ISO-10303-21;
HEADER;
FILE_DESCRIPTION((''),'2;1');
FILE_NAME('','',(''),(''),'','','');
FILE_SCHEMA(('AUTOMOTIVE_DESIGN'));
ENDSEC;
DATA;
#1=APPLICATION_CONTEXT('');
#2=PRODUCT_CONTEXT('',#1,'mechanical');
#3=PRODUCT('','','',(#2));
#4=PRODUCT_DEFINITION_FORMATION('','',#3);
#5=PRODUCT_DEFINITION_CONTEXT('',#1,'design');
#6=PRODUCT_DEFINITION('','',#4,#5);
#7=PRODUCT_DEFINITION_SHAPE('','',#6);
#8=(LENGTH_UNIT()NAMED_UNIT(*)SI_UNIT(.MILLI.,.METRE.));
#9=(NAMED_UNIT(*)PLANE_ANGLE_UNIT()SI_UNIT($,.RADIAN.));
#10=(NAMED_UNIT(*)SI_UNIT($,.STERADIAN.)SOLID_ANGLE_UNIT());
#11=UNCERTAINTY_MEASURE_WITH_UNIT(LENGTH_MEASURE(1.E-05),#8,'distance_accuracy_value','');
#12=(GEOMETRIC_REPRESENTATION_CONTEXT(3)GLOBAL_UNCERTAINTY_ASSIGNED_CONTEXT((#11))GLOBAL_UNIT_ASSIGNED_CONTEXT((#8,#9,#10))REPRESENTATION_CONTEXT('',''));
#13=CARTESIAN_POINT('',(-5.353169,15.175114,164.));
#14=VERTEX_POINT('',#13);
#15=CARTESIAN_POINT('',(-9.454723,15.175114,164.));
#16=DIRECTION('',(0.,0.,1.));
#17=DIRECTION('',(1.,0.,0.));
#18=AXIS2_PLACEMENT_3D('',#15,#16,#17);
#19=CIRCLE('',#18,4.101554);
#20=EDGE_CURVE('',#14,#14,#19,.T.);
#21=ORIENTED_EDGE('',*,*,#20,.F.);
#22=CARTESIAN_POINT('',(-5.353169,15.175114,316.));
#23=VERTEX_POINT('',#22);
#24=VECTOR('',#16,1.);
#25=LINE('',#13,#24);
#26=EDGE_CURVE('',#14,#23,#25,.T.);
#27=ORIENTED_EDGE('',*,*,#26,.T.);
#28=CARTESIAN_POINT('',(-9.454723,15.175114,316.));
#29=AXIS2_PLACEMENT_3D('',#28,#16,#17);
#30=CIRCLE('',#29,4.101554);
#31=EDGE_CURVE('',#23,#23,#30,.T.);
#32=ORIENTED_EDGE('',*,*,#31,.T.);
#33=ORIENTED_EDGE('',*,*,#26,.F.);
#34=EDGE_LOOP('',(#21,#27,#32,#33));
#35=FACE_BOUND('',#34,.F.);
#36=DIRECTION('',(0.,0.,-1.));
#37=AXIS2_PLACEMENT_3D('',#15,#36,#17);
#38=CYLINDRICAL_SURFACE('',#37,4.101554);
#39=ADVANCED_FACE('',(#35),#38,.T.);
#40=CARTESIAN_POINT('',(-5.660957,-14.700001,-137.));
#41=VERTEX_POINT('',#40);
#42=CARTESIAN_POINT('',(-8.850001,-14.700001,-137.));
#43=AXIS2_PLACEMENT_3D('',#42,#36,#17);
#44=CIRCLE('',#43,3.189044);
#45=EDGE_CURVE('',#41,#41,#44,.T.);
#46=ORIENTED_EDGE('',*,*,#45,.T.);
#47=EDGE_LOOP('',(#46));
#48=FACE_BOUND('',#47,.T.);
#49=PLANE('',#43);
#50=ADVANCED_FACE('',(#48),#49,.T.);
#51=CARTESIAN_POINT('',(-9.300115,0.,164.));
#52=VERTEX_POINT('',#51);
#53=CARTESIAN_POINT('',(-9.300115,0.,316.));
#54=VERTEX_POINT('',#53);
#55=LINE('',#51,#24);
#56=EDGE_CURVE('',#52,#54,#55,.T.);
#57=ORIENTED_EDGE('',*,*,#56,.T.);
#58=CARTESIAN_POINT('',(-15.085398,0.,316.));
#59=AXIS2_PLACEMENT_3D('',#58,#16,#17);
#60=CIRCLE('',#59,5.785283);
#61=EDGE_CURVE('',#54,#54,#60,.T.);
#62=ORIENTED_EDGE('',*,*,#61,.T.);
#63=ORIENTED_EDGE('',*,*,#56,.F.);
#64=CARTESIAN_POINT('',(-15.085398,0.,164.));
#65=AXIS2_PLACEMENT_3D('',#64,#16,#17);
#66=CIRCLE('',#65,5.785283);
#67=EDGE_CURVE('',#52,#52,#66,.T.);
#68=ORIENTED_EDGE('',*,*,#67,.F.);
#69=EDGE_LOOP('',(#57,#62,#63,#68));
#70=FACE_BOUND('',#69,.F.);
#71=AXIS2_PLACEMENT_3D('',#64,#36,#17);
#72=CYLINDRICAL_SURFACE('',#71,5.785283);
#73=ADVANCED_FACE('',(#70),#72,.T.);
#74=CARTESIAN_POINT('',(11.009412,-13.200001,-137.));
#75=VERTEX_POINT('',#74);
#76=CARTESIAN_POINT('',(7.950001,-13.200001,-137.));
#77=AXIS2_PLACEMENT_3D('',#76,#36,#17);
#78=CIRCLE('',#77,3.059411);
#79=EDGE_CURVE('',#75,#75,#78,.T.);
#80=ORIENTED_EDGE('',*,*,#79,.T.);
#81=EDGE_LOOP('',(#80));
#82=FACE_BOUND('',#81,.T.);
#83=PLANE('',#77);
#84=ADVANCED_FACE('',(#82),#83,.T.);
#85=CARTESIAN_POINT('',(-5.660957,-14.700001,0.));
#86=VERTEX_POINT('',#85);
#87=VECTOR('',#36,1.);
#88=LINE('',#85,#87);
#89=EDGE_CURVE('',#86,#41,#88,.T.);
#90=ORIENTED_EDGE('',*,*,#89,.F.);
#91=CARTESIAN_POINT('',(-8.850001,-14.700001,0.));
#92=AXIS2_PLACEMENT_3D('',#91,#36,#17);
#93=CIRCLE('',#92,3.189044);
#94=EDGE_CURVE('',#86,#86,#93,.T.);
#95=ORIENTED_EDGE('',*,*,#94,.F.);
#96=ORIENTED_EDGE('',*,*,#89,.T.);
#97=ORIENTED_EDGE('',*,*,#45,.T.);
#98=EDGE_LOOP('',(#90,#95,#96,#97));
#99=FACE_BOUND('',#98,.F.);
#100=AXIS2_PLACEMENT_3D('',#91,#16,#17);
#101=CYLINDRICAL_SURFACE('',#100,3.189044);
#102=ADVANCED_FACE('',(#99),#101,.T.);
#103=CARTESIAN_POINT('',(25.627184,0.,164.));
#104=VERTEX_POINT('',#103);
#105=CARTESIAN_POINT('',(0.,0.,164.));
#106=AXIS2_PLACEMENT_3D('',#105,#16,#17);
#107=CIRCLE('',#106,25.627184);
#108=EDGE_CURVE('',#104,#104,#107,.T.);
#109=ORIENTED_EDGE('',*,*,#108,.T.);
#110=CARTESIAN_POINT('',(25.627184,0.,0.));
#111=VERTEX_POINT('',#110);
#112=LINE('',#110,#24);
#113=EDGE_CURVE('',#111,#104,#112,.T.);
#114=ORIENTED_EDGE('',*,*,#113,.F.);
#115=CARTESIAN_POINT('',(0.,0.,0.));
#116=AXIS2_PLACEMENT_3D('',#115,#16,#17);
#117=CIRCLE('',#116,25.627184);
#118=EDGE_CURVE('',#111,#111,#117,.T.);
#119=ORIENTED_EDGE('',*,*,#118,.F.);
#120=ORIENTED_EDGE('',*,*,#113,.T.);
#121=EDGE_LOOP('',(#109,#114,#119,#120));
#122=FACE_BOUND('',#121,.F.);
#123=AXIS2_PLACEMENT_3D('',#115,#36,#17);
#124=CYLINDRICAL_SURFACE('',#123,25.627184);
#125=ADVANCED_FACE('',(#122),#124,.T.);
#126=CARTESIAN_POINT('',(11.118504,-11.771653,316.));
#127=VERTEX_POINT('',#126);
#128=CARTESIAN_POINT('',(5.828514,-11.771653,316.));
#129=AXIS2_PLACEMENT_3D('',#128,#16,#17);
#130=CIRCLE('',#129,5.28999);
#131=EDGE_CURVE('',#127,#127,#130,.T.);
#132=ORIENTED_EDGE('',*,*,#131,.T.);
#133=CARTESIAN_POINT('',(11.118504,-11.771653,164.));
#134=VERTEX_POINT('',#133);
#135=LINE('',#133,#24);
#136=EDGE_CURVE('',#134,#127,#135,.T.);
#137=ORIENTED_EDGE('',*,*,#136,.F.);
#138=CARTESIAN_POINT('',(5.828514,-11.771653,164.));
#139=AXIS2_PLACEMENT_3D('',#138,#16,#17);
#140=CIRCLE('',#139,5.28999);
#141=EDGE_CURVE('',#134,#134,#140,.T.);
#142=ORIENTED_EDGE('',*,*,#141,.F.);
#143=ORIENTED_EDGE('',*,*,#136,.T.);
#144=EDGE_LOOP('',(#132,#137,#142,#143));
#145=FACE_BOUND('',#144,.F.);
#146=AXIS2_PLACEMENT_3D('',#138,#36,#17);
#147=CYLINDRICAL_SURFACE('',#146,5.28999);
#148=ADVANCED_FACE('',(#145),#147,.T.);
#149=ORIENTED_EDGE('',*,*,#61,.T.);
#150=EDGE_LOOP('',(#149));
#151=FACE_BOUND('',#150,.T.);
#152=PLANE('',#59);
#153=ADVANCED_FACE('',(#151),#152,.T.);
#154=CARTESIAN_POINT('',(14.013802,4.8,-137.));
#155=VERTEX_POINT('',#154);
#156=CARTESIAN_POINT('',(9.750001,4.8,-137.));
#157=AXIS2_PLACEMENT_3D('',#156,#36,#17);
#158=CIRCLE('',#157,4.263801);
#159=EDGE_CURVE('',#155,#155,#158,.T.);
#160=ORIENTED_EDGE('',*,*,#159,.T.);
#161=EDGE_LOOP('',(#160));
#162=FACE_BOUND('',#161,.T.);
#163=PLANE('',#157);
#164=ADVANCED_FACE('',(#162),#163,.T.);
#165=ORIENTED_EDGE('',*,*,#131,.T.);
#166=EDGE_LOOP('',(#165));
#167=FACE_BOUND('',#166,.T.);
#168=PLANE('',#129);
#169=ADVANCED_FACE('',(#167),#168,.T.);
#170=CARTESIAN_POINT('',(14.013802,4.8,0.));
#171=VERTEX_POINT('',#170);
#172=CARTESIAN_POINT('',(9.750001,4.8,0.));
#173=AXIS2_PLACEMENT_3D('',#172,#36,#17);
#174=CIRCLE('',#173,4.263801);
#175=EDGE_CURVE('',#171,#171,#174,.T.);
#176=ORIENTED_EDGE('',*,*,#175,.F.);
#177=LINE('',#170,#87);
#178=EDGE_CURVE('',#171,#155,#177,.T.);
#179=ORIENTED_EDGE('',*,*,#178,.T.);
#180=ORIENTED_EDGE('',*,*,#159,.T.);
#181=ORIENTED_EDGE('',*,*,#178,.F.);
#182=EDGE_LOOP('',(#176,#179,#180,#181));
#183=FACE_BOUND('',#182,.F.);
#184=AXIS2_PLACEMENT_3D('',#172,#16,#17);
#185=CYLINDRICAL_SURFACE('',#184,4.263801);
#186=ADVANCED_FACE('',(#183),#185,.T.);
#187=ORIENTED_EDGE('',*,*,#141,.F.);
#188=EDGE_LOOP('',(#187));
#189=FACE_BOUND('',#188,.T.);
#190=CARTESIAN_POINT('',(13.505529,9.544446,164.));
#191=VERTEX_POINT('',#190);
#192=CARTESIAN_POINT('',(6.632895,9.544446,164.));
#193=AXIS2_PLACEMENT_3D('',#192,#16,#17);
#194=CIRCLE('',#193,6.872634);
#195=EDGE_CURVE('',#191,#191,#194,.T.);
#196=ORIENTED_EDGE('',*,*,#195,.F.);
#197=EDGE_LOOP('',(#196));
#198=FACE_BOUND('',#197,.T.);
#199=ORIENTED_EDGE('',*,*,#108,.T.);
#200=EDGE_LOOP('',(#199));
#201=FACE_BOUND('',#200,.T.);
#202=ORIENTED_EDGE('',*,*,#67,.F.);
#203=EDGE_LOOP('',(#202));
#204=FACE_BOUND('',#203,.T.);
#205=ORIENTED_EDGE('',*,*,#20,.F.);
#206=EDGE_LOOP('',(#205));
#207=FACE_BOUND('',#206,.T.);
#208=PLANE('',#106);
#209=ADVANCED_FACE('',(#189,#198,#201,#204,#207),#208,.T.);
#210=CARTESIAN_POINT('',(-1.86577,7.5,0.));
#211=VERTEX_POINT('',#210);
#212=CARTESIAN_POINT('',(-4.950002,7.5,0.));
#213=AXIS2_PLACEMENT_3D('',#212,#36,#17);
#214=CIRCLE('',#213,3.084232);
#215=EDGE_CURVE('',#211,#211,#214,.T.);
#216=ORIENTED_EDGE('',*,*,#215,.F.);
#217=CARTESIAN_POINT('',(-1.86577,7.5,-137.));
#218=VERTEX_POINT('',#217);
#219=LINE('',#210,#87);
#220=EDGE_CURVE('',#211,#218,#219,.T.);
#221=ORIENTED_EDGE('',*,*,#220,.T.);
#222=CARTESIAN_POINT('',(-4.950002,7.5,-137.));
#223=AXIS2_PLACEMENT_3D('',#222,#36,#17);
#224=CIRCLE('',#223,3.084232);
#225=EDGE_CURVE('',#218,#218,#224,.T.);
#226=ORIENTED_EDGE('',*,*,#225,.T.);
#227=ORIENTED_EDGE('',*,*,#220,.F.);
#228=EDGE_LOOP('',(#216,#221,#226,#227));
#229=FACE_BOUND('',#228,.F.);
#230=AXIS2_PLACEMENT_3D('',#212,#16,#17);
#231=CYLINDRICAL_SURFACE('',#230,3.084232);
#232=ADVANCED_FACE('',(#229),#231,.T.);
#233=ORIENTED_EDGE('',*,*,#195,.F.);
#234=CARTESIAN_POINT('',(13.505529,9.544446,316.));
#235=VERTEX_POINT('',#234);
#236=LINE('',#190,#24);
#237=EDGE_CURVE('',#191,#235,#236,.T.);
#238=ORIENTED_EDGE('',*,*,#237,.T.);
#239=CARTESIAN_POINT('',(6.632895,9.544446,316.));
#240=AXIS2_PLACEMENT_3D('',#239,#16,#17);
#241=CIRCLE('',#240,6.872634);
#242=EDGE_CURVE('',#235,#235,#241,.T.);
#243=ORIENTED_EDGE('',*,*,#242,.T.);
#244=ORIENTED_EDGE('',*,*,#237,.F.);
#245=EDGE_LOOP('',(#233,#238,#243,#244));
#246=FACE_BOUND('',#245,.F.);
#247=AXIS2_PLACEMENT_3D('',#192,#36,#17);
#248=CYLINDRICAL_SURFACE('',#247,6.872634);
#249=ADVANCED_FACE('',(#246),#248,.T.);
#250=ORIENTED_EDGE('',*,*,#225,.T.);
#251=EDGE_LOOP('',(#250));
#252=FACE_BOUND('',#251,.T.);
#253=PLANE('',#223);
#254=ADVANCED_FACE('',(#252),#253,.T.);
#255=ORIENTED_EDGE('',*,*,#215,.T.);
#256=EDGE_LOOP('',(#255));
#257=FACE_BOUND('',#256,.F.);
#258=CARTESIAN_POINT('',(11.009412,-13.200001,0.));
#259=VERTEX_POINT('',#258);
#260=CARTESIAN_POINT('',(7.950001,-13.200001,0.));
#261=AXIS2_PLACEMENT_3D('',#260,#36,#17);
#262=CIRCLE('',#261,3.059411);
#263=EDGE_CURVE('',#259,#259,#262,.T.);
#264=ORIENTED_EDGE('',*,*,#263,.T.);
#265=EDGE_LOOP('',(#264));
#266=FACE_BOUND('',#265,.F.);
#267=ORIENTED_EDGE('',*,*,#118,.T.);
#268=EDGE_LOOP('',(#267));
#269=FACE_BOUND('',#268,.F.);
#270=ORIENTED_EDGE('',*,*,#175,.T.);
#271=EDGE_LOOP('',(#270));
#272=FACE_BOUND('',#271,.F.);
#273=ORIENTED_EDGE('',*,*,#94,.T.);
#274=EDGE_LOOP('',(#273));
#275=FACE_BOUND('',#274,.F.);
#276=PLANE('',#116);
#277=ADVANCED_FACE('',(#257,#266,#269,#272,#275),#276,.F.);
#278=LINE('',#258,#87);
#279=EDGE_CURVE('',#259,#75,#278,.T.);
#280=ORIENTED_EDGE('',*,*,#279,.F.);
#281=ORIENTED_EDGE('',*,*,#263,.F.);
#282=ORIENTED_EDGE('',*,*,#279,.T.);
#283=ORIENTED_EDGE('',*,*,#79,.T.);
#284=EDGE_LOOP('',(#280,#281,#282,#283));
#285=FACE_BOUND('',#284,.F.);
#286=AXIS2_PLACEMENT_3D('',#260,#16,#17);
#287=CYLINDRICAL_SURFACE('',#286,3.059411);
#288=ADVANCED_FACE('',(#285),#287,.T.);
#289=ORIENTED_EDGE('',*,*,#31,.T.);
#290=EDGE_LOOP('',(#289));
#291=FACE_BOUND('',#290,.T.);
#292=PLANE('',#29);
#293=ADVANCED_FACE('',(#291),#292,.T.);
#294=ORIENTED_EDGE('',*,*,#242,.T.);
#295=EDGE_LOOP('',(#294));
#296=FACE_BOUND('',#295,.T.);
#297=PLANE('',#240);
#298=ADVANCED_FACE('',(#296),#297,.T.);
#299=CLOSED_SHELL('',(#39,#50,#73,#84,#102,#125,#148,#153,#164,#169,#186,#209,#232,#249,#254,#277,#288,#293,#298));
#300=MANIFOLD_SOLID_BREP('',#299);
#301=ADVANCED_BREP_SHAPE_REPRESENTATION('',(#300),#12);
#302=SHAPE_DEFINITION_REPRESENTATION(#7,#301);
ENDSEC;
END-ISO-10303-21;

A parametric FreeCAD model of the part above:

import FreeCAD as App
import Part
import Sketcher
from FreeCAD import Vector

doc = App.newDocument("Part")
body = doc.addObject("PartDesign::Body", "Body")

sketch1 = doc.addObject("Sketcher::SketchObject", "Sketch")
body.addObject(sketch1)
sketch1.AttachmentSupport = (doc.XY_Plane, [""])
sketch1.MapMode = "FlatFace"
sketch1.addGeometry(Part.Circle(Vector(0, 0, 0), Vector(0, 0, 1), 26), False)
sketch1.addConstraint([
    Sketcher.Constraint("Coincident", 0, 3, -1, 1),
    Sketcher.Constraint("Diameter", 0, 51.254368),
])
pad1 = doc.addObject("PartDesign::Pad", "Pad")
body.addObject(pad1)
pad1.Profile = sketch1
pad1.Length = 164

sketch2 = doc.addObject("Sketcher::SketchObject", "Sketch001")
body.addObject(sketch2)
sketch2.AttachmentSupport = (doc.XY_Plane, [""])
sketch2.MapMode = "FlatFace"
sketch2.addGeometry([
    Part.Circle(Vector(-8.9, -14.7, 0), Vector(0, 0, 1), 3.2),
    Part.Circle(Vector(8, -13.2, 0), Vector(0, 0, 1), 3.1),
    Part.Circle(Vector(9.8, 4.8, 0), Vector(0, 0, 1), 4.3),
    Part.Circle(Vector(-5, 7.5, 0), Vector(0, 0, 1), 3.1),
], False)
sketch2.addConstraint([
    Sketcher.Constraint("DistanceY", 1, 3, 2, 3, 18.000001),
    Sketcher.Constraint("DistanceY", 0, 3, -1, 1, 14.700001),
    Sketcher.Constraint("DistanceY", 1, 3, -1, 1, 13.200001),
    Sketcher.Constraint("DistanceY", -1, 1, 3, 3, 7.5),
    Sketcher.Constraint("DistanceX", 0, 3, 1, 3, 16.800002),
    Sketcher.Constraint("DistanceX", 1, 3, 2, 3, 1.8),
    Sketcher.Constraint("DistanceX", 0, 3, 3, 3, 3.899999),
    Sketcher.Constraint("Diameter", 1, 6.118822),
    Sketcher.Constraint("DistanceX", 0, 3, -1, 1, 8.850001),
    Sketcher.Constraint("Diameter", 0, 6.378088),
    Sketcher.Constraint("Diameter", 2, 8.527602),
    Sketcher.Constraint("Diameter", 3, 6.168464),
])
pad2 = doc.addObject("PartDesign::Pad", "Pad001")
body.addObject(pad2)
pad2.Profile = sketch2
pad2.Length = 137
pad2.Reversed = True

sketch3 = doc.addObject("Sketcher::SketchObject", "Sketch002")
body.addObject(sketch3)
sketch3.AttachmentSupport = (doc.XY_Plane, [""])
sketch3.MapMode = "FlatFace"
sketch3.AttachmentOffset = App.Placement(Vector(0, 0, 164), App.Rotation())
sketch3.addGeometry([
    Part.Circle(Vector(-9.5, 15.2, 0), Vector(0, 0, 1), 4.1),
    Part.Circle(Vector(6.6, 9.5, 0), Vector(0, 0, 1), 6.9),
    Part.Circle(Vector(5.8, -11.8, 0), Vector(0, 0, 1), 5.3),
    Part.Circle(Vector(-15.1, 0, 0), Vector(0, 0, 1), 5.8),
], False)
sketch3.addConstraint([
    Sketcher.Constraint("PointOnObject", 3, 3, -1),
    Sketcher.Constraint("Diameter", 2, 10.57998),
    Sketcher.Constraint("Diameter", 0, 8.203108),
    Sketcher.Constraint("Diameter", 1, 13.745268),
    Sketcher.Constraint("Diameter", 3, 11.570566),
    Sketcher.Constraint("DistanceY", 2, 3, 1, 3, 21.316099),
    Sketcher.Constraint("DistanceX", 2, 3, 1, 3, 0.804381),
    Sketcher.Constraint("DistanceX", 3, 3, 2, 3, 20.913912),
    Sketcher.Constraint("DistanceX", 0, 3, -1, 1, 9.454723),
    Sketcher.Constraint("DistanceY", -1, 1, 0, 3, 15.175114),
    Sketcher.Constraint("DistanceX", -1, 1, 1, 3, 6.632895),
    Sketcher.Constraint("DistanceY", -1, 1, 1, 3, 9.544446),
])
pad3 = doc.addObject("PartDesign::Pad", "Pad002")
body.addObject(pad3)
pad3.Profile = sketch3
pad3.Length = 152

doc.recompute()
